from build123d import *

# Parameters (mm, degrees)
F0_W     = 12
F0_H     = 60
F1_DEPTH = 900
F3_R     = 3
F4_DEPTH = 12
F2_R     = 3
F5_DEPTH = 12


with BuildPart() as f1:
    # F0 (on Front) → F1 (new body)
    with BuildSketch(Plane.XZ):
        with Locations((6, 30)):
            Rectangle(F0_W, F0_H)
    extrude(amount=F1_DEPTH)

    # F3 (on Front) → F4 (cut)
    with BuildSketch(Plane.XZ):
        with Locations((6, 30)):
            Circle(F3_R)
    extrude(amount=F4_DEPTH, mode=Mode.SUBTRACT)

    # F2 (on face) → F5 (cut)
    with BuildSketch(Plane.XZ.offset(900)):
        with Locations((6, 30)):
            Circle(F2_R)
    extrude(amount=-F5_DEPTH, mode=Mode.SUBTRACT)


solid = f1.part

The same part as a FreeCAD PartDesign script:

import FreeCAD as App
import Part
import Sketcher
Q = App.Units.Quantity

doc = App.newDocument("Part")
body = doc.addObject("PartDesign::Body", "Body")

# Sketch on XZ plane
sketch1 = body.newObject("Sketcher::SketchObject", "Sketch")
sketch1.AttachmentSupport = (doc.getObject("XZ_Plane"), [""])
sketch1.MapMode = "FlatFace"
sketch1.addGeometry(Part.LineSegment(App.Vector(0, 60, 0), App.Vector(0, 0, 0)), False)
sketch1.addGeometry(Part.LineSegment(App.Vector(0, 0, 0), App.Vector(12, 0, 0)), False)
sketch1.addGeometry(Part.LineSegment(App.Vector(12, 0, 0), App.Vector(12, 60, 0)), False)
sketch1.addGeometry(Part.LineSegment(App.Vector(12, 60, 0), App.Vector(0, 60, 0)), False)
sketch1.addConstraint(Sketcher.Constraint("Coincident", 0, 2, 1, 1))
sketch1.addConstraint(Sketcher.Constraint("Coincident", 1, 2, 2, 1))
sketch1.addConstraint(Sketcher.Constraint("Coincident", 2, 2, 3, 1))
sketch1.addConstraint(Sketcher.Constraint("Coincident", 3, 2, 0, 1))
sketch1.addConstraint(Sketcher.Constraint("Vertical", 0))
sketch1.addConstraint(Sketcher.Constraint("Horizontal", 1))
sketch1.addConstraint(Sketcher.Constraint("Vertical", 2))
sketch1.addConstraint(Sketcher.Constraint("Horizontal", 3))
sketch1.addConstraint(Sketcher.Constraint("Coincident", 0, 2, -1, 1))
sketch1.addConstraint(Sketcher.Constraint("DistanceX", 1, 1, 1, 2, Q("12 mm")))
sketch1.addConstraint(Sketcher.Constraint("DistanceY", 0, 2, 0, 1, Q("60 mm")))
pad1 = body.newObject("PartDesign::Pad", "Pad")
pad1.Profile = sketch1
pad1.Length = 900

# Sketch on XZ plane
sketch2 = body.newObject("Sketcher::SketchObject", "Sketch001")
sketch2.AttachmentSupport = (doc.getObject("XZ_Plane"), [""])
sketch2.MapMode = "FlatFace"
sketch2.addGeometry(Part.Circle(App.Vector(6, 30, 0), App.Vector(0, 0, 1), 3), False)
sketch2.addConstraint(Sketcher.Constraint("Diameter", 0, Q("6 mm")))
sketch2.addConstraint(Sketcher.Constraint("DistanceX", -1, 1, 0, 3, Q("6 mm")))
sketch2.addConstraint(Sketcher.Constraint("DistanceY", -1, 1, 0, 3, Q("30 mm")))
pocket1 = body.newObject("PartDesign::Pocket", "Pocket")
pocket1.Profile = sketch2
pocket1.Length = 12
pocket1.Reversed = True

# Sketch on XZ plane
sketch3 = body.newObject("Sketcher::SketchObject", "Sketch002")
sketch3.AttachmentSupport = (doc.getObject("XZ_Plane"), [""])
sketch3.MapMode = "FlatFace"
sketch3.AttachmentOffset = App.Placement(App.Vector(0, 0, 900), App.Rotation())
sketch3.addGeometry(Part.Circle(App.Vector(6, 30, 0), App.Vector(0, 0, 1), 3), False)
sketch3.addConstraint(Sketcher.Constraint("Diameter", 0, Q("6 mm")))
sketch3.addConstraint(Sketcher.Constraint("DistanceX", -1, 1, 0, 3, Q("6 mm")))
sketch3.addConstraint(Sketcher.Constraint("DistanceY", -1, 1, 0, 3, Q("30 mm")))
pocket2 = body.newObject("PartDesign::Pocket", "Pocket001")
pocket2.Profile = sketch3
pocket2.Length = 12

doc.recompute()
